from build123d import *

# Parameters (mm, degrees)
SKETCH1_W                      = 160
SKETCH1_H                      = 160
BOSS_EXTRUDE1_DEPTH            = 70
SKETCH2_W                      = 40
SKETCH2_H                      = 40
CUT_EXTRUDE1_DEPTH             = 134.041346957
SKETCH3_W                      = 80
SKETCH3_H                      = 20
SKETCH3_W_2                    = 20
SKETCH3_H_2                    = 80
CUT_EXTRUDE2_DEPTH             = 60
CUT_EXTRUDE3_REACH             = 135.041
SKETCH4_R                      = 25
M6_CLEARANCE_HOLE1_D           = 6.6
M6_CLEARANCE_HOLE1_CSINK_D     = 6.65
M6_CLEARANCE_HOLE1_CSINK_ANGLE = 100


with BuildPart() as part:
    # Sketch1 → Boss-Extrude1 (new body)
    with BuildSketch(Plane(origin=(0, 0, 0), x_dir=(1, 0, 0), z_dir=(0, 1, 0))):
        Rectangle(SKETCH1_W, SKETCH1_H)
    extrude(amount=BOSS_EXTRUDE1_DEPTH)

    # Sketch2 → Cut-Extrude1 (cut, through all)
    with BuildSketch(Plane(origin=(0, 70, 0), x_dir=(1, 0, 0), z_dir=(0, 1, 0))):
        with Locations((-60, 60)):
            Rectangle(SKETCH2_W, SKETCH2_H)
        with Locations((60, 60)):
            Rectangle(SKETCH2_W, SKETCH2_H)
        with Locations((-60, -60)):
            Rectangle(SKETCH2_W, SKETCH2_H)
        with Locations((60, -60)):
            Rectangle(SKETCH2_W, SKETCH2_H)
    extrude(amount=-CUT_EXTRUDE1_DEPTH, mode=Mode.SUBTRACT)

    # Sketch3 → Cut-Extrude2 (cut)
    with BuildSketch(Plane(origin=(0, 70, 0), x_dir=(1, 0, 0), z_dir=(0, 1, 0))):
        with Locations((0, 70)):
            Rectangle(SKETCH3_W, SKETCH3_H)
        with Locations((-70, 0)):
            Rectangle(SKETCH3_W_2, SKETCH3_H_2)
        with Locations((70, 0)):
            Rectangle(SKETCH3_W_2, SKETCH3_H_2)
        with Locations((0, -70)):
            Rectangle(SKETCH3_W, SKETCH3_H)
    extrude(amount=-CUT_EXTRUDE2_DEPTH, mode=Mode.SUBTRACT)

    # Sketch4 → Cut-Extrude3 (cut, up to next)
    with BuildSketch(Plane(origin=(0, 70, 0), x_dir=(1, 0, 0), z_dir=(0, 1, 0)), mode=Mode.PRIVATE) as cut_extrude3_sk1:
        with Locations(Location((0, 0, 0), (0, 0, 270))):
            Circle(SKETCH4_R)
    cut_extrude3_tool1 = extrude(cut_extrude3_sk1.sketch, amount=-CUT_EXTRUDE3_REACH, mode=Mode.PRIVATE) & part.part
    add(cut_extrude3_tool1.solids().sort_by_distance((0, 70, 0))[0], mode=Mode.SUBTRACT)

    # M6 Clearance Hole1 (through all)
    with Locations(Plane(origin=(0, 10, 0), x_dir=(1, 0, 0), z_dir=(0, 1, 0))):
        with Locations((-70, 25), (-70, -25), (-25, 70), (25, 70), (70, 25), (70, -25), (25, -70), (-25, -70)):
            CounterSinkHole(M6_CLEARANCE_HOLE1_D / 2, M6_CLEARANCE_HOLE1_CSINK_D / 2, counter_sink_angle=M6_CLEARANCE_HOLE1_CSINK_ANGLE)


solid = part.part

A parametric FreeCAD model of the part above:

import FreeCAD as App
import Part
import Sketcher


def add_polygon(sketch, points):
    """Adds a closed chain of lines whose ends are joined by coincident constraints."""
    first, n = sketch.GeometryCount, len(points)
    for a, b in zip(points, points[1:] + points[:1]):
        sketch.addGeometry(Part.LineSegment(App.Vector(*a, 0), App.Vector(*b, 0)), False)
    for i in range(n):
        sketch.addConstraint(Sketcher.Constraint("Coincident", first + i, 2, first + (i + 1) % n, 1))

doc = App.newDocument("Part")
body = doc.addObject("PartDesign::Body", "Body")

sketch1 = body.newObject("Sketcher::SketchObject", "Sketch")
sketch1.AttachmentSupport = (doc.getObject("XZ_Plane"), [""])
sketch1.MapMode = "FlatFace"
add_polygon(sketch1, [(-80, -80), (-80, 80), (80, 80), (80, -80)])
sketch1.addConstraint([
    Sketcher.Constraint("Vertical", 0),
    Sketcher.Constraint("Horizontal", 1),
    Sketcher.Constraint("Vertical", 2),
    Sketcher.Constraint("Horizontal", 3),
    Sketcher.Constraint("Symmetric", 0, 2, 2, 2, -1, 1),
    Sketcher.Constraint("Equal", 3, 0),
    Sketcher.Constraint("DistanceX", 1, 1, 1, 2, 160.0),
])
pad1 = body.newObject("PartDesign::Pad", "Pad")
pad1.Profile = sketch1
pad1.Length = 70
pad1.Reversed = True

sketch2 = body.newObject("Sketcher::SketchObject", "Sketch001")
sketch2.AttachmentSupport = (doc.getObject("XZ_Plane"), [""])
sketch2.MapMode = "FlatFace"
sketch2.AttachmentOffset = App.Placement(App.Vector(0, 0, -70), App.Rotation())
add_polygon(sketch2, [(-80, -80), (-80, -40), (-40, -40), (-40, -80)])
add_polygon(sketch2, [(40, -80), (40, -40), (80, -40), (80, -80)])
add_polygon(sketch2, [(-80, 40), (-80, 80), (-40, 80), (-40, 40)])
add_polygon(sketch2, [(40, 40), (40, 80), (80, 80), (80, 40)])
sketch2.addConstraint([
    Sketcher.Constraint("Vertical", 0),
    Sketcher.Constraint("Horizontal", 1),
    Sketcher.Constraint("Vertical", 2),
    Sketcher.Constraint("Horizontal", 3),
    Sketcher.Constraint("Vertical", 4),
    Sketcher.Constraint("Horizontal", 5),
    Sketcher.Constraint("Vertical", 6),
    Sketcher.Constraint("Horizontal", 7),
    Sketcher.Constraint("Vertical", 8),
    Sketcher.Constraint("Horizontal", 9),
    Sketcher.Constraint("Vertical", 10),
    Sketcher.Constraint("Horizontal", 11),
    Sketcher.Constraint("Vertical", 12),
    Sketcher.Constraint("Horizontal", 13),
    Sketcher.Constraint("Vertical", 14),
    Sketcher.Constraint("Horizontal", 15),
    Sketcher.Constraint("Symmetric", 6, 2, 8, 2, -1, 1),
    Sketcher.Constraint("Symmetric", 4, 2, 10, 2, -1, 1),
    Sketcher.Constraint("Symmetric", 2, 2, 12, 2, -1, 1),
    Sketcher.Constraint("Symmetric", 0, 2, 14, 2, -1, 1),
    Sketcher.Constraint("Symmetric", 1, 2, 4, 2, -2),
    Sketcher.Constraint("Symmetric", 3, 2, 6, 2, -2),
    Sketcher.Constraint("Equal", 15, 0),
    Sketcher.Constraint("DistanceX", 1, 1, 1, 2, 40.0),
    Sketcher.Constraint("DistanceX", 0, 2, -1, 1, 80.0),
    Sketcher.Constraint("DistanceY", 0, 2, -1, 1, 40.0),
])
pocket1 = body.newObject("PartDesign::Pocket", "Pocket")
pocket1.Profile = sketch2
pocket1.Type = "ThroughAll"
pocket1.Reversed = True

sketch3 = body.newObject("Sketcher::SketchObject", "Sketch002")
sketch3.AttachmentSupport = (doc.getObject("XZ_Plane"), [""])
sketch3.MapMode = "FlatFace"
sketch3.AttachmentOffset = App.Placement(App.Vector(0, 0, -70), App.Rotation())
add_polygon(sketch3, [(-40, -80), (-40, -60), (40, -60), (40, -80)])
add_polygon(sketch3, [(-80, -40), (-80, 40), (-60, 40), (-60, -40)])
add_polygon(sketch3, [(60, -40), (60, 40), (80, 40), (80, -40)])
add_polygon(sketch3, [(-40, 60), (-40, 80), (40, 80), (40, 60)])
sketch3.addConstraint([
    Sketcher.Constraint("Vertical", 0),
    Sketcher.Constraint("Horizontal", 1),
    Sketcher.Constraint("Vertical", 2),
    Sketcher.Constraint("Horizontal", 3),
    Sketcher.Constraint("Vertical", 4),
    Sketcher.Constraint("Horizontal", 5),
    Sketcher.Constraint("Vertical", 6),
    Sketcher.Constraint("Horizontal", 7),
    Sketcher.Constraint("Vertical", 8),
    Sketcher.Constraint("Horizontal", 9),
    Sketcher.Constraint("Vertical", 10),
    Sketcher.Constraint("Horizontal", 11),
    Sketcher.Constraint("Vertical", 12),
    Sketcher.Constraint("Horizontal", 13),
    Sketcher.Constraint("Vertical", 14),
    Sketcher.Constraint("Horizontal", 15),
    Sketcher.Constraint("Symmetric", 6, 2, 8, 2, -1, 1),
    Sketcher.Constraint("Symmetric", 4, 2, 10, 2, -1, 1),
    Sketcher.Constraint("Symmetric", 2, 2, 12, 2, -1, 1),
    Sketcher.Constraint("Symmetric", 0, 2, 14, 2, -1, 1),
    Sketcher.Constraint("Horizontal", 5, 2, 8, 2),
    Sketcher.Constraint("Vertical", 3, 2, 12, 2),
    Sketcher.Constraint("Equal", 11, 0),
    Sketcher.Constraint("Equal", 15, 4),
    Sketcher.Constraint("DistanceX", 1, 1, 1, 2, 80.0),
    Sketcher.Constraint("DistanceX", 5, 1, 5, 2, 20.0),
    Sketcher.Constraint("DistanceY", 0, 2, -1, 1, 60.0),
    Sketcher.Constraint("DistanceX", 4, 2, -1, 1, 80.0),
])
pocket2 = body.newObject("PartDesign::Pocket", "Pocket001")
pocket2.Profile = sketch3
pocket2.Length = 60
pocket2.Reversed = True

sketch4 = body.newObject("Sketcher::SketchObject", "Sketch003")
sketch4.AttachmentSupport = (doc.getObject("XZ_Plane"), [""])
sketch4.MapMode = "FlatFace"
sketch4.AttachmentOffset = App.Placement(App.Vector(0, 0, -70), App.Rotation())
sketch4.addGeometry(Part.Circle(App.Vector(0, 0, 0), App.Vector(0, 0, 1), 25), False)
sketch4.addConstraint([
    Sketcher.Constraint("Coincident", 0, 3, -1, 1),
    Sketcher.Constraint("Diameter", 0, 50.0),
])
pocket3 = body.newObject("PartDesign::Pocket", "Pocket002")
pocket3.Profile = sketch4
pocket3.Type = "UpToFirst"
pocket3.Reversed = True

sketch5 = body.newObject("Sketcher::SketchObject", "Sketch004")
sketch5.AttachmentSupport = (doc.getObject("XZ_Plane"), [""])
sketch5.MapMode = "FlatFace"
sketch5.AttachmentOffset = App.Placement(App.Vector(0, 0, -10), App.Rotation())
sketch5.addGeometry([
    Part.Circle(App.Vector(-70, -25, 0), App.Vector(0, 0, 1), 3.3),
    Part.Circle(App.Vector(-70, 25, 0), App.Vector(0, 0, 1), 3.3),
    Part.Circle(App.Vector(-25, -70, 0), App.Vector(0, 0, 1), 3.3),
    Part.Circle(App.Vector(25, -70, 0), App.Vector(0, 0, 1), 3.3),
    Part.Circle(App.Vector(70, -25, 0), App.Vector(0, 0, 1), 3.3),
    Part.Circle(App.Vector(70, 25, 0), App.Vector(0, 0, 1), 3.3),
    Part.Circle(App.Vector(25, 70, 0), App.Vector(0, 0, 1), 3.3),
    Part.Circle(App.Vector(-25, 70, 0), App.Vector(0, 0, 1), 3.3),
], False)
sketch5.addConstraint([
    Sketcher.Constraint("Equal", 0, 1),
    Sketcher.Constraint("Equal", 1, 2),
    Sketcher.Constraint("Equal", 2, 3),
    Sketcher.Constraint("Equal", 3, 4),
    Sketcher.Constraint("Equal", 4, 5),
    Sketcher.Constraint("Equal", 5, 6),
    Sketcher.Constraint("Equal", 6, 7),
    Sketcher.Constraint("Symmetric", 1, 3, 4, 3, -1, 1),
    Sketcher.Constraint("Symmetric", 0, 3, 5, 3, -1, 1),
    Sketcher.Constraint("Symmetric", 2, 3, 6, 3, -1, 1),
    Sketcher.Constraint("Symmetric", 3, 3, 7, 3, -1, 1),
    Sketcher.Constraint("Symmetric", 2, 3, 3, 3, -2),
    Sketcher.Constraint("Symmetric", 0, 3, 4, 3, -2),
    Sketcher.Constraint("Diameter", 0, 6.6),
    Sketcher.Constraint("DistanceX", 0, 3, -1, 1, 70.0),
    Sketcher.Constraint("DistanceY", 0, 3, -1, 1, 25.0),
    Sketcher.Constraint("DistanceX", 2, 3, -1, 1, 25.0),
    Sketcher.Constraint("DistanceY", 2, 3, -1, 1, 70.0),
])
doc.recompute()
hole = body.newObject("PartDesign::Hole", "Hole")
hole.Profile = sketch5
hole.ThreadType = "None"
hole.Diameter = 6.6
hole.DepthType = "ThroughAll"
hole.HoleCutType = "Countersink"
hole.HoleCutDiameter = 6.65
hole.HoleCutCountersinkAngle = 100
hole.Reversed = True

doc.recompute()
